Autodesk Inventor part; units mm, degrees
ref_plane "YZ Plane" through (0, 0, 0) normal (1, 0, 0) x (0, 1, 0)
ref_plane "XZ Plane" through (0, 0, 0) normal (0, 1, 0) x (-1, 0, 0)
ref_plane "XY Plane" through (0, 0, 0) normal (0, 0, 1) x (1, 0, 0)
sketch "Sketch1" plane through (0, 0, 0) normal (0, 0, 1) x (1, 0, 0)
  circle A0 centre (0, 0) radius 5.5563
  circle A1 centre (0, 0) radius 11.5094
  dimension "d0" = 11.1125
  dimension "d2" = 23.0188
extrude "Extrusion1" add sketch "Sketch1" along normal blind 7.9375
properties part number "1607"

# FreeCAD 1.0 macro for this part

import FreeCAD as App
import Part
import Sketcher

V = App.Vector
Q = App.Units.Quantity

doc = App.newDocument("Part")
body = doc.addObject("PartDesign::Body", "Body")

sketch1 = body.newObject("Sketcher::SketchObject", "Sketch")
sketch1.AttachmentSupport = (doc.getObject("XY_Plane"), [""])
sketch1.MapMode = "FlatFace"
sketch1.addGeometry(Part.Circle(V(0, 0, 0), V(0, 0, 1), 12), False)
sketch1.addGeometry(Part.Circle(V(0, 0, 0), V(0, 0, 1), 6), False)
sketch1.addConstraint(Sketcher.Constraint("Coincident", 0, 3, -1, 1))
sketch1.addConstraint(Sketcher.Constraint("Coincident", 1, 3, -1, 1))
sketch1.addConstraint(Sketcher.Constraint("Diameter", 0, Q("0.906252 in")))
sketch1.addConstraint(Sketcher.Constraint("Diameter", 1, Q("0.4375 in")))
pad1 = body.newObject("PartDesign::Pad", "Pad")
pad1.Profile = sketch1
pad1.Length = Q("0.3125 in")

doc.recompute()
